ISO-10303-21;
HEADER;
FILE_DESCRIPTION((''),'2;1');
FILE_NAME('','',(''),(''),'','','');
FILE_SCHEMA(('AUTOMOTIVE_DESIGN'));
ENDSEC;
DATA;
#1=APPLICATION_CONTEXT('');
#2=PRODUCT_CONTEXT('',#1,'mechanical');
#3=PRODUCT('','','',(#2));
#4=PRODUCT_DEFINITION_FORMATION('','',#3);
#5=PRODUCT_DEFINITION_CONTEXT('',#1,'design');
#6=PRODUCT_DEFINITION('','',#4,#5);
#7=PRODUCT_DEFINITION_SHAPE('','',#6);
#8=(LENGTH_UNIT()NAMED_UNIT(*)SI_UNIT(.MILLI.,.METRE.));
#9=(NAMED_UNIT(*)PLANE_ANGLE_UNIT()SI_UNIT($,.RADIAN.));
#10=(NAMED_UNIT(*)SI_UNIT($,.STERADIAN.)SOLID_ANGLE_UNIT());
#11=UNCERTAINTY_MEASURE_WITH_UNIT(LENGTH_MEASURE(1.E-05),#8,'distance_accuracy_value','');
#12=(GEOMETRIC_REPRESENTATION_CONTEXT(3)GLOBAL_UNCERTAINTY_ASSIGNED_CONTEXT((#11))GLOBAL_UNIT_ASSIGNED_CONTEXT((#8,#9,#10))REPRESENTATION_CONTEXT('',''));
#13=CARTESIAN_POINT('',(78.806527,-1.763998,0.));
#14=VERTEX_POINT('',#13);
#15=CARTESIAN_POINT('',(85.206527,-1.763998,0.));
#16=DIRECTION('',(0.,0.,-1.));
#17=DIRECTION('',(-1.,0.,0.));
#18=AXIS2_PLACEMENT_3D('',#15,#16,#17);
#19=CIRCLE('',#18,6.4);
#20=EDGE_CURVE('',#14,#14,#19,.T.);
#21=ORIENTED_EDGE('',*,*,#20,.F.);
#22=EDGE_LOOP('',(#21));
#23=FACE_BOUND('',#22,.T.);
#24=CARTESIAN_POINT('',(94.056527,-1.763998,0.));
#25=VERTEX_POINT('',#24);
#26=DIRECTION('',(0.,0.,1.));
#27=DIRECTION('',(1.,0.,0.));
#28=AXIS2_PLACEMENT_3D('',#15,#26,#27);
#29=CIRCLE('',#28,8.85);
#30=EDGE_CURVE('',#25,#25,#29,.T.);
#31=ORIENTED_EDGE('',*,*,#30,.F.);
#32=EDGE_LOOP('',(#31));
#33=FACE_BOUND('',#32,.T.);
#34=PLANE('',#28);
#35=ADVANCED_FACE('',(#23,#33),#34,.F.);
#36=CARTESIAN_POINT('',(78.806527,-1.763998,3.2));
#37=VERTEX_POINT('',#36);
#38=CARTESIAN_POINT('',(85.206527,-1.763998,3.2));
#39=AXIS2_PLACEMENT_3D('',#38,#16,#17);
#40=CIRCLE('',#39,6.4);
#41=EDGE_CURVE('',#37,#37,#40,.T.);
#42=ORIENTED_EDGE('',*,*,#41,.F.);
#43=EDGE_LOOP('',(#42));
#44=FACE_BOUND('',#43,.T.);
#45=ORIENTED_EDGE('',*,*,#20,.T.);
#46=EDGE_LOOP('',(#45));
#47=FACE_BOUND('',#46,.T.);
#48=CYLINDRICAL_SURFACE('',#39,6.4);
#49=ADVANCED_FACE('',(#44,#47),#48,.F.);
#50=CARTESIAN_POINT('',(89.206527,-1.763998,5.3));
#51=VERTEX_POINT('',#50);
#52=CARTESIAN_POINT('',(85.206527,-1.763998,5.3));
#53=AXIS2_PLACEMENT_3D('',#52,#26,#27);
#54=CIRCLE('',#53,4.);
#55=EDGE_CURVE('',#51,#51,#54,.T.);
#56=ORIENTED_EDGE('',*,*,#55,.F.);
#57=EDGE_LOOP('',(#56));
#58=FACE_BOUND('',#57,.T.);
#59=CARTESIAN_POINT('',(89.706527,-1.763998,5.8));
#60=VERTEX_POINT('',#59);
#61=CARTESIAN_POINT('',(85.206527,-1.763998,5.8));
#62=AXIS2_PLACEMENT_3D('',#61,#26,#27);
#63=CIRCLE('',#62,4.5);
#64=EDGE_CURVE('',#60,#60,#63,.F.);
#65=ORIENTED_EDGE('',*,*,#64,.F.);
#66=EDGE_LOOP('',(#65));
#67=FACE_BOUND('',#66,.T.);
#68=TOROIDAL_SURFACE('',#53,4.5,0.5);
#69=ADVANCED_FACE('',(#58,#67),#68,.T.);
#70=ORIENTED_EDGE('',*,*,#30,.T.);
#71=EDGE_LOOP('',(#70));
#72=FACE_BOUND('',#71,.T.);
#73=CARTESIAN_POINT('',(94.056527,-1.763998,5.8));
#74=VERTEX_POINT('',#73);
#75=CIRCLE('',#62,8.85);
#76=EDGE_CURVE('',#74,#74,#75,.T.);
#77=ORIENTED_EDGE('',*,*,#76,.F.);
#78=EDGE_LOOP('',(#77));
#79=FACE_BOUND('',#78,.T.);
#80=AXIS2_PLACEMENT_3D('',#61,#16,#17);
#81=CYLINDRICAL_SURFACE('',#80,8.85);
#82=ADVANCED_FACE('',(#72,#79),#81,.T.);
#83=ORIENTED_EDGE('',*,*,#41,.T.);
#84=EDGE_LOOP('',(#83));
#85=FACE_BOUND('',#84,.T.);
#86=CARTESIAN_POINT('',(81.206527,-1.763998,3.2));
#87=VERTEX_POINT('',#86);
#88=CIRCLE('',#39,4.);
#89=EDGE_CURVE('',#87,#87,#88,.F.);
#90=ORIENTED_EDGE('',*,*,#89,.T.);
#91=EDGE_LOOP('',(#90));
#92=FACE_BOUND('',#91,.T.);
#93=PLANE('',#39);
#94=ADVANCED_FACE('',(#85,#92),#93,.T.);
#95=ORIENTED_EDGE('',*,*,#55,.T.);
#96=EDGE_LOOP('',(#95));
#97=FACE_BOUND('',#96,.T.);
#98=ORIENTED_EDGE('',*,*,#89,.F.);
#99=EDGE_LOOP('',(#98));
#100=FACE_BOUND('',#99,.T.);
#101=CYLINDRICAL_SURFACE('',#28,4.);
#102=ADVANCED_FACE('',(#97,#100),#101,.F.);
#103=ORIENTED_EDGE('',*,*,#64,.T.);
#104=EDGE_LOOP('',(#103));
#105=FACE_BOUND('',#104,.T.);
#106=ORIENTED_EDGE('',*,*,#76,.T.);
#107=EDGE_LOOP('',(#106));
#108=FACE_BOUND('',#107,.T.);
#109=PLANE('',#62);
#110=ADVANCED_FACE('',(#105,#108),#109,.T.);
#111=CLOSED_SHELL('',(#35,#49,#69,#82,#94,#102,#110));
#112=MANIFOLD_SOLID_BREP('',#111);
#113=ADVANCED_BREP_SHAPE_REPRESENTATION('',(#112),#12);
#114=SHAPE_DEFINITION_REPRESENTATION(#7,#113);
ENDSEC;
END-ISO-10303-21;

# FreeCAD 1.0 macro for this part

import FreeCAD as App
import Part
import Sketcher


def edges_at(feature, points):
    """Names of the edges that pass closest to the given points."""
    edges = feature.Shape.Edges
    near = lambda p: min(range(len(edges)), key=lambda i: edges[i].distToShape(Part.Vertex(*p))[0])
    return sorted({f"Edge{near(p) + 1}" for p in points})

doc = App.newDocument("Part")
params = doc.addObject("Spreadsheet::Sheet", "Params")
for row, (alias, value) in enumerate([
    ("sketch1_diameter", "17.7 mm"),
    ("pad1_length", "5.8 mm"),
    ("sketch2_diameter", "8 mm"),
    ("sketch3_diameter", "12.8 mm"),
    ("pocket2_length", "3.2 mm"),
    ("fillet_radius", "0.5 mm"),
], start=1):
    params.set(f"A{row}", alias)
    params.set(f"B{row}", "=" + value)
    params.setAlias(f"B{row}", alias)

body = doc.addObject("PartDesign::Body", "Body")

# Sketch on XY plane
sketch1 = body.newObject("Sketcher::SketchObject", "Sketch")
sketch1.AttachmentSupport = (doc.getObject("XY_Plane"), [""])
sketch1.MapMode = "FlatFace"
sketch1.addGeometry(Part.Circle(App.Vector(85, -2, 0), App.Vector(0, 0, 1), 9), False)
sketch1.addConstraint([
    Sketcher.Constraint("Diameter", 0, 17.7),
    Sketcher.Constraint("DistanceX", -1, 1, 0, 3, 85.206527),
    Sketcher.Constraint("DistanceY", 0, 3, -1, 1, 1.763998),
])
sketch1.setExpression("Constraints[0]", "Params.sketch1_diameter")
pad1 = body.newObject("PartDesign::Pad", "Pad")
pad1.Profile = sketch1
pad1.setExpression("Length", "Params.pad1_length")

# Sketch on XY plane
sketch2 = body.newObject("Sketcher::SketchObject", "Sketch001")
sketch2.AttachmentSupport = (doc.getObject("XY_Plane"), [""])
sketch2.MapMode = "FlatFace"
sketch2.AttachmentOffset = App.Placement(App.Vector(0, 0, 5.8), App.Rotation())
sketch2.addGeometry(Part.Circle(App.Vector(85.2, -1.8, 0), App.Vector(0, 0, 1), 4), False)
sketch2.addConstraint([
    Sketcher.Constraint("Diameter", 0, 8.0),
    Sketcher.Constraint("DistanceX", -1, 1, 0, 3, 85.206527),
    Sketcher.Constraint("DistanceY", 0, 3, -1, 1, 1.763998),
])
sketch2.setExpression("Constraints[0]", "Params.sketch2_diameter")
pocket1 = body.newObject("PartDesign::Pocket", "Pocket")
pocket1.Profile = sketch2
pocket1.Type = "ThroughAll"

# Sketch on XY plane
sketch3 = body.newObject("Sketcher::SketchObject", "Sketch002")
sketch3.AttachmentSupport = (doc.getObject("XY_Plane"), [""])
sketch3.MapMode = "FlatFace"
sketch3.addGeometry(Part.Circle(App.Vector(85, -2, 0), App.Vector(0, 0, 1), 6), False)
sketch3.addConstraint([
    Sketcher.Constraint("Diameter", 0, 12.8),
    Sketcher.Constraint("DistanceX", -1, 1, 0, 3, 85.206527),
    Sketcher.Constraint("DistanceY", 0, 3, -1, 1, 1.763998),
])
sketch3.setExpression("Constraints[0]", "Params.sketch3_diameter")
pocket2 = body.newObject("PartDesign::Pocket", "Pocket001")
pocket2.Profile = sketch3
pocket2.setExpression("Length", "Params.pocket2_length")
pocket2.Reversed = True
doc.recompute()

fillet = body.newObject("PartDesign::Fillet", "Fillet")
fillet.Base = (pocket2, edges_at(pocket2, [(81.207, -1.764, 5.8)]))
fillet.setExpression("Radius", "Params.fillet_radius")

doc.recompute()
